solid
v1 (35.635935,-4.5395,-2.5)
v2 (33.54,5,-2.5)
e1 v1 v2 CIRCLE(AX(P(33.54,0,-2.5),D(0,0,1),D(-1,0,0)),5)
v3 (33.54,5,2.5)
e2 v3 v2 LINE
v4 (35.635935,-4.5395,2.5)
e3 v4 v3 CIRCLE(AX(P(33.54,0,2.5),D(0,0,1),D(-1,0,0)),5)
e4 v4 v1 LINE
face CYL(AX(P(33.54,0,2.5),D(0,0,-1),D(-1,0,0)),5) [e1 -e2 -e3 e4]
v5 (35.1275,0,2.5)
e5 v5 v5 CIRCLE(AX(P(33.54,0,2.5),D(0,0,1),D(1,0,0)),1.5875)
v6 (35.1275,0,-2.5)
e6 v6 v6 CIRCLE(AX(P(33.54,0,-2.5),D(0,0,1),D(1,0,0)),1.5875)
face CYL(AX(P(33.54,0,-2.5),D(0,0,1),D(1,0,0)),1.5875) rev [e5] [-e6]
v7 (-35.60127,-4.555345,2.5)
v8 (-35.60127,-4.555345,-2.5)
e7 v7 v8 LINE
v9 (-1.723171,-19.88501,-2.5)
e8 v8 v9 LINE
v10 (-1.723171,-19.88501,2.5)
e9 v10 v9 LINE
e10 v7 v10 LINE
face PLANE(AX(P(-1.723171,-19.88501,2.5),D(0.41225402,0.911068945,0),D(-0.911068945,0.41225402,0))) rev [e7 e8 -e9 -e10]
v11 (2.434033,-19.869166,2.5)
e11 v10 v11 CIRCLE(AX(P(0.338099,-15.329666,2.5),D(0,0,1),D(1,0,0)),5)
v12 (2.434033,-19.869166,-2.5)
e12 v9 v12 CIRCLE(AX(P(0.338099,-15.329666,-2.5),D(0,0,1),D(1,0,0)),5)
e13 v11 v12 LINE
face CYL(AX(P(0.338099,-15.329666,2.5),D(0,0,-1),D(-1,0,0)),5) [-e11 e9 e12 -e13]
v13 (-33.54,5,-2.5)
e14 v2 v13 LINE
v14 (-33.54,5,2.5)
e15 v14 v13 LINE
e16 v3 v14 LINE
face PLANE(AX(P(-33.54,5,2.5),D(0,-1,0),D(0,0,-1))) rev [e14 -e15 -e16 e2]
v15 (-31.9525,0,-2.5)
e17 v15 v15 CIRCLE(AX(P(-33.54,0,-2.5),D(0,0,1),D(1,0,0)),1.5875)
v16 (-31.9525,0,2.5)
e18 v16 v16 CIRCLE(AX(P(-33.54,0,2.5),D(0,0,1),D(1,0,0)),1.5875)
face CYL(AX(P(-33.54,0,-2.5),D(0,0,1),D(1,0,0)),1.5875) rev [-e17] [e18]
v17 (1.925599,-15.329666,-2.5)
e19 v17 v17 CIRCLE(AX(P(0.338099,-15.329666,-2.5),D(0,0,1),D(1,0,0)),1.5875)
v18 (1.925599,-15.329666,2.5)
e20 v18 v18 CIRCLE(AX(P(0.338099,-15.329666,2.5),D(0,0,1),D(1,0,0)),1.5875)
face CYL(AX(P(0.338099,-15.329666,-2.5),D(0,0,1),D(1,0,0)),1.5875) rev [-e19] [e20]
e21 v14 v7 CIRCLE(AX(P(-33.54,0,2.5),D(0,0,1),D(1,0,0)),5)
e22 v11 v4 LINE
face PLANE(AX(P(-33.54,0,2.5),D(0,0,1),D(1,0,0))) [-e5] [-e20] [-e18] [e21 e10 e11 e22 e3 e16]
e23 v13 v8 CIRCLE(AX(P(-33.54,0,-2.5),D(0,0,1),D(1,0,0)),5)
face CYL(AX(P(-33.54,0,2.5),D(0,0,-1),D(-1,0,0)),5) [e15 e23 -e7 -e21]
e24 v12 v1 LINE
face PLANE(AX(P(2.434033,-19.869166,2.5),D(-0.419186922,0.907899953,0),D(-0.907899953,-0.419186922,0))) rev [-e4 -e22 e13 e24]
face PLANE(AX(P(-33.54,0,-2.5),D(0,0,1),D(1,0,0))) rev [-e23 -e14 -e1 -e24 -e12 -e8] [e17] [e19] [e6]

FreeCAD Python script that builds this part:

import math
import FreeCAD as App
import Part
import Sketcher
from FreeCAD import Vector

doc = App.newDocument("Part")
body = doc.addObject("PartDesign::Body", "Body")

sketch1 = body.newObject("Sketcher::SketchObject", "Sketch")
sketch1.AttachmentSupport = (doc.getObject("XY_Plane"), [""])
sketch1.MapMode = "FlatFace"
sketch1.addGeometry([
    Part.LineSegment(Vector(33.5, 5, 0), Vector(-33.5, 5, 0)),
    Part.ArcOfCircle(Part.Circle(Vector(-33.5, 0, 0), Vector(0, 0, 1), 5), math.radians(90), math.radians(246)),
    Part.LineSegment(Vector(-35.6, -4.6, 0), Vector(-1.7, -19.9, 0)),
    Part.ArcOfCircle(Part.Circle(Vector(0.3, -15.3, 0), Vector(0, 0, 1), 5), math.radians(-114), math.radians(-65)),
    Part.LineSegment(Vector(2.4, -19.9, 0), Vector(35.6, -4.5, 0)),
    Part.ArcOfCircle(Part.Circle(Vector(33.5, 0, 0), Vector(0, 0, 1), 5), math.radians(-65), math.radians(90)),
], False)
sketch1.addConstraint([
    Sketcher.Constraint("Tangent", 0, 2, 1, 1),
    Sketcher.Constraint("Tangent", 1, 2, 2, 1),
    Sketcher.Constraint("Tangent", 2, 2, 3, 1),
    Sketcher.Constraint("Tangent", 3, 2, 4, 1),
    Sketcher.Constraint("Tangent", 4, 2, 5, 1),
    Sketcher.Constraint("Tangent", 5, 2, 0, 1),
    Sketcher.Constraint("Horizontal", 0),
    Sketcher.Constraint("Equal", 1, 3),
    Sketcher.Constraint("Equal", 3, 5),
    Sketcher.Constraint("Symmetric", 1, 3, 5, 3, -1, 1),
    Sketcher.Constraint("Radius", 1, 5.0),
    Sketcher.Constraint("DistanceX", 0, 2, 0, 1, 67.08),
    Sketcher.Constraint("Distance", 4, 36.57),
    Sketcher.Constraint("Distance", 2, 37.185),
])
pad1 = body.newObject("PartDesign::Pad", "Pad")
pad1.Profile = sketch1
pad1.Length = 5
pad1.Midplane = True

sketch2 = body.newObject("Sketcher::SketchObject", "Sketch001")
sketch2.AttachmentSupport = (doc.getObject("XY_Plane"), [""])
sketch2.MapMode = "FlatFace"
sketch2.AttachmentOffset = App.Placement(Vector(0, 0, 2.5), App.Rotation())
sketch2.addGeometry([
    Part.Circle(Vector(-33.5, 0, 0), Vector(0, 0, 1), 1.6),
    Part.Circle(Vector(33.5, 0, 0), Vector(0, 0, 1), 1.6),
    Part.Circle(Vector(0.3, -15.3, 0), Vector(0, 0, 1), 1.6),
], False)
sketch2.addConstraint([
    Sketcher.Constraint("Equal", 0, 1),
    Sketcher.Constraint("Equal", 1, 2),
    Sketcher.Constraint("Symmetric", 0, 3, 1, 3, -1, 1),
    Sketcher.Constraint("PointOnObject", 0, 3, -1),
    Sketcher.Constraint("Diameter", 0, 3.175),
    Sketcher.Constraint("DistanceX", 0, 3, -1, 1, 33.54),
    Sketcher.Constraint("DistanceX", -1, 1, 2, 3, 0.338099),
    Sketcher.Constraint("DistanceY", 2, 3, -1, 1, 15.329666),
])
pocket1 = body.newObject("PartDesign::Pocket", "Pocket")
pocket1.Profile = sketch2
pocket1.Type = "ThroughAll"

doc.recompute()
